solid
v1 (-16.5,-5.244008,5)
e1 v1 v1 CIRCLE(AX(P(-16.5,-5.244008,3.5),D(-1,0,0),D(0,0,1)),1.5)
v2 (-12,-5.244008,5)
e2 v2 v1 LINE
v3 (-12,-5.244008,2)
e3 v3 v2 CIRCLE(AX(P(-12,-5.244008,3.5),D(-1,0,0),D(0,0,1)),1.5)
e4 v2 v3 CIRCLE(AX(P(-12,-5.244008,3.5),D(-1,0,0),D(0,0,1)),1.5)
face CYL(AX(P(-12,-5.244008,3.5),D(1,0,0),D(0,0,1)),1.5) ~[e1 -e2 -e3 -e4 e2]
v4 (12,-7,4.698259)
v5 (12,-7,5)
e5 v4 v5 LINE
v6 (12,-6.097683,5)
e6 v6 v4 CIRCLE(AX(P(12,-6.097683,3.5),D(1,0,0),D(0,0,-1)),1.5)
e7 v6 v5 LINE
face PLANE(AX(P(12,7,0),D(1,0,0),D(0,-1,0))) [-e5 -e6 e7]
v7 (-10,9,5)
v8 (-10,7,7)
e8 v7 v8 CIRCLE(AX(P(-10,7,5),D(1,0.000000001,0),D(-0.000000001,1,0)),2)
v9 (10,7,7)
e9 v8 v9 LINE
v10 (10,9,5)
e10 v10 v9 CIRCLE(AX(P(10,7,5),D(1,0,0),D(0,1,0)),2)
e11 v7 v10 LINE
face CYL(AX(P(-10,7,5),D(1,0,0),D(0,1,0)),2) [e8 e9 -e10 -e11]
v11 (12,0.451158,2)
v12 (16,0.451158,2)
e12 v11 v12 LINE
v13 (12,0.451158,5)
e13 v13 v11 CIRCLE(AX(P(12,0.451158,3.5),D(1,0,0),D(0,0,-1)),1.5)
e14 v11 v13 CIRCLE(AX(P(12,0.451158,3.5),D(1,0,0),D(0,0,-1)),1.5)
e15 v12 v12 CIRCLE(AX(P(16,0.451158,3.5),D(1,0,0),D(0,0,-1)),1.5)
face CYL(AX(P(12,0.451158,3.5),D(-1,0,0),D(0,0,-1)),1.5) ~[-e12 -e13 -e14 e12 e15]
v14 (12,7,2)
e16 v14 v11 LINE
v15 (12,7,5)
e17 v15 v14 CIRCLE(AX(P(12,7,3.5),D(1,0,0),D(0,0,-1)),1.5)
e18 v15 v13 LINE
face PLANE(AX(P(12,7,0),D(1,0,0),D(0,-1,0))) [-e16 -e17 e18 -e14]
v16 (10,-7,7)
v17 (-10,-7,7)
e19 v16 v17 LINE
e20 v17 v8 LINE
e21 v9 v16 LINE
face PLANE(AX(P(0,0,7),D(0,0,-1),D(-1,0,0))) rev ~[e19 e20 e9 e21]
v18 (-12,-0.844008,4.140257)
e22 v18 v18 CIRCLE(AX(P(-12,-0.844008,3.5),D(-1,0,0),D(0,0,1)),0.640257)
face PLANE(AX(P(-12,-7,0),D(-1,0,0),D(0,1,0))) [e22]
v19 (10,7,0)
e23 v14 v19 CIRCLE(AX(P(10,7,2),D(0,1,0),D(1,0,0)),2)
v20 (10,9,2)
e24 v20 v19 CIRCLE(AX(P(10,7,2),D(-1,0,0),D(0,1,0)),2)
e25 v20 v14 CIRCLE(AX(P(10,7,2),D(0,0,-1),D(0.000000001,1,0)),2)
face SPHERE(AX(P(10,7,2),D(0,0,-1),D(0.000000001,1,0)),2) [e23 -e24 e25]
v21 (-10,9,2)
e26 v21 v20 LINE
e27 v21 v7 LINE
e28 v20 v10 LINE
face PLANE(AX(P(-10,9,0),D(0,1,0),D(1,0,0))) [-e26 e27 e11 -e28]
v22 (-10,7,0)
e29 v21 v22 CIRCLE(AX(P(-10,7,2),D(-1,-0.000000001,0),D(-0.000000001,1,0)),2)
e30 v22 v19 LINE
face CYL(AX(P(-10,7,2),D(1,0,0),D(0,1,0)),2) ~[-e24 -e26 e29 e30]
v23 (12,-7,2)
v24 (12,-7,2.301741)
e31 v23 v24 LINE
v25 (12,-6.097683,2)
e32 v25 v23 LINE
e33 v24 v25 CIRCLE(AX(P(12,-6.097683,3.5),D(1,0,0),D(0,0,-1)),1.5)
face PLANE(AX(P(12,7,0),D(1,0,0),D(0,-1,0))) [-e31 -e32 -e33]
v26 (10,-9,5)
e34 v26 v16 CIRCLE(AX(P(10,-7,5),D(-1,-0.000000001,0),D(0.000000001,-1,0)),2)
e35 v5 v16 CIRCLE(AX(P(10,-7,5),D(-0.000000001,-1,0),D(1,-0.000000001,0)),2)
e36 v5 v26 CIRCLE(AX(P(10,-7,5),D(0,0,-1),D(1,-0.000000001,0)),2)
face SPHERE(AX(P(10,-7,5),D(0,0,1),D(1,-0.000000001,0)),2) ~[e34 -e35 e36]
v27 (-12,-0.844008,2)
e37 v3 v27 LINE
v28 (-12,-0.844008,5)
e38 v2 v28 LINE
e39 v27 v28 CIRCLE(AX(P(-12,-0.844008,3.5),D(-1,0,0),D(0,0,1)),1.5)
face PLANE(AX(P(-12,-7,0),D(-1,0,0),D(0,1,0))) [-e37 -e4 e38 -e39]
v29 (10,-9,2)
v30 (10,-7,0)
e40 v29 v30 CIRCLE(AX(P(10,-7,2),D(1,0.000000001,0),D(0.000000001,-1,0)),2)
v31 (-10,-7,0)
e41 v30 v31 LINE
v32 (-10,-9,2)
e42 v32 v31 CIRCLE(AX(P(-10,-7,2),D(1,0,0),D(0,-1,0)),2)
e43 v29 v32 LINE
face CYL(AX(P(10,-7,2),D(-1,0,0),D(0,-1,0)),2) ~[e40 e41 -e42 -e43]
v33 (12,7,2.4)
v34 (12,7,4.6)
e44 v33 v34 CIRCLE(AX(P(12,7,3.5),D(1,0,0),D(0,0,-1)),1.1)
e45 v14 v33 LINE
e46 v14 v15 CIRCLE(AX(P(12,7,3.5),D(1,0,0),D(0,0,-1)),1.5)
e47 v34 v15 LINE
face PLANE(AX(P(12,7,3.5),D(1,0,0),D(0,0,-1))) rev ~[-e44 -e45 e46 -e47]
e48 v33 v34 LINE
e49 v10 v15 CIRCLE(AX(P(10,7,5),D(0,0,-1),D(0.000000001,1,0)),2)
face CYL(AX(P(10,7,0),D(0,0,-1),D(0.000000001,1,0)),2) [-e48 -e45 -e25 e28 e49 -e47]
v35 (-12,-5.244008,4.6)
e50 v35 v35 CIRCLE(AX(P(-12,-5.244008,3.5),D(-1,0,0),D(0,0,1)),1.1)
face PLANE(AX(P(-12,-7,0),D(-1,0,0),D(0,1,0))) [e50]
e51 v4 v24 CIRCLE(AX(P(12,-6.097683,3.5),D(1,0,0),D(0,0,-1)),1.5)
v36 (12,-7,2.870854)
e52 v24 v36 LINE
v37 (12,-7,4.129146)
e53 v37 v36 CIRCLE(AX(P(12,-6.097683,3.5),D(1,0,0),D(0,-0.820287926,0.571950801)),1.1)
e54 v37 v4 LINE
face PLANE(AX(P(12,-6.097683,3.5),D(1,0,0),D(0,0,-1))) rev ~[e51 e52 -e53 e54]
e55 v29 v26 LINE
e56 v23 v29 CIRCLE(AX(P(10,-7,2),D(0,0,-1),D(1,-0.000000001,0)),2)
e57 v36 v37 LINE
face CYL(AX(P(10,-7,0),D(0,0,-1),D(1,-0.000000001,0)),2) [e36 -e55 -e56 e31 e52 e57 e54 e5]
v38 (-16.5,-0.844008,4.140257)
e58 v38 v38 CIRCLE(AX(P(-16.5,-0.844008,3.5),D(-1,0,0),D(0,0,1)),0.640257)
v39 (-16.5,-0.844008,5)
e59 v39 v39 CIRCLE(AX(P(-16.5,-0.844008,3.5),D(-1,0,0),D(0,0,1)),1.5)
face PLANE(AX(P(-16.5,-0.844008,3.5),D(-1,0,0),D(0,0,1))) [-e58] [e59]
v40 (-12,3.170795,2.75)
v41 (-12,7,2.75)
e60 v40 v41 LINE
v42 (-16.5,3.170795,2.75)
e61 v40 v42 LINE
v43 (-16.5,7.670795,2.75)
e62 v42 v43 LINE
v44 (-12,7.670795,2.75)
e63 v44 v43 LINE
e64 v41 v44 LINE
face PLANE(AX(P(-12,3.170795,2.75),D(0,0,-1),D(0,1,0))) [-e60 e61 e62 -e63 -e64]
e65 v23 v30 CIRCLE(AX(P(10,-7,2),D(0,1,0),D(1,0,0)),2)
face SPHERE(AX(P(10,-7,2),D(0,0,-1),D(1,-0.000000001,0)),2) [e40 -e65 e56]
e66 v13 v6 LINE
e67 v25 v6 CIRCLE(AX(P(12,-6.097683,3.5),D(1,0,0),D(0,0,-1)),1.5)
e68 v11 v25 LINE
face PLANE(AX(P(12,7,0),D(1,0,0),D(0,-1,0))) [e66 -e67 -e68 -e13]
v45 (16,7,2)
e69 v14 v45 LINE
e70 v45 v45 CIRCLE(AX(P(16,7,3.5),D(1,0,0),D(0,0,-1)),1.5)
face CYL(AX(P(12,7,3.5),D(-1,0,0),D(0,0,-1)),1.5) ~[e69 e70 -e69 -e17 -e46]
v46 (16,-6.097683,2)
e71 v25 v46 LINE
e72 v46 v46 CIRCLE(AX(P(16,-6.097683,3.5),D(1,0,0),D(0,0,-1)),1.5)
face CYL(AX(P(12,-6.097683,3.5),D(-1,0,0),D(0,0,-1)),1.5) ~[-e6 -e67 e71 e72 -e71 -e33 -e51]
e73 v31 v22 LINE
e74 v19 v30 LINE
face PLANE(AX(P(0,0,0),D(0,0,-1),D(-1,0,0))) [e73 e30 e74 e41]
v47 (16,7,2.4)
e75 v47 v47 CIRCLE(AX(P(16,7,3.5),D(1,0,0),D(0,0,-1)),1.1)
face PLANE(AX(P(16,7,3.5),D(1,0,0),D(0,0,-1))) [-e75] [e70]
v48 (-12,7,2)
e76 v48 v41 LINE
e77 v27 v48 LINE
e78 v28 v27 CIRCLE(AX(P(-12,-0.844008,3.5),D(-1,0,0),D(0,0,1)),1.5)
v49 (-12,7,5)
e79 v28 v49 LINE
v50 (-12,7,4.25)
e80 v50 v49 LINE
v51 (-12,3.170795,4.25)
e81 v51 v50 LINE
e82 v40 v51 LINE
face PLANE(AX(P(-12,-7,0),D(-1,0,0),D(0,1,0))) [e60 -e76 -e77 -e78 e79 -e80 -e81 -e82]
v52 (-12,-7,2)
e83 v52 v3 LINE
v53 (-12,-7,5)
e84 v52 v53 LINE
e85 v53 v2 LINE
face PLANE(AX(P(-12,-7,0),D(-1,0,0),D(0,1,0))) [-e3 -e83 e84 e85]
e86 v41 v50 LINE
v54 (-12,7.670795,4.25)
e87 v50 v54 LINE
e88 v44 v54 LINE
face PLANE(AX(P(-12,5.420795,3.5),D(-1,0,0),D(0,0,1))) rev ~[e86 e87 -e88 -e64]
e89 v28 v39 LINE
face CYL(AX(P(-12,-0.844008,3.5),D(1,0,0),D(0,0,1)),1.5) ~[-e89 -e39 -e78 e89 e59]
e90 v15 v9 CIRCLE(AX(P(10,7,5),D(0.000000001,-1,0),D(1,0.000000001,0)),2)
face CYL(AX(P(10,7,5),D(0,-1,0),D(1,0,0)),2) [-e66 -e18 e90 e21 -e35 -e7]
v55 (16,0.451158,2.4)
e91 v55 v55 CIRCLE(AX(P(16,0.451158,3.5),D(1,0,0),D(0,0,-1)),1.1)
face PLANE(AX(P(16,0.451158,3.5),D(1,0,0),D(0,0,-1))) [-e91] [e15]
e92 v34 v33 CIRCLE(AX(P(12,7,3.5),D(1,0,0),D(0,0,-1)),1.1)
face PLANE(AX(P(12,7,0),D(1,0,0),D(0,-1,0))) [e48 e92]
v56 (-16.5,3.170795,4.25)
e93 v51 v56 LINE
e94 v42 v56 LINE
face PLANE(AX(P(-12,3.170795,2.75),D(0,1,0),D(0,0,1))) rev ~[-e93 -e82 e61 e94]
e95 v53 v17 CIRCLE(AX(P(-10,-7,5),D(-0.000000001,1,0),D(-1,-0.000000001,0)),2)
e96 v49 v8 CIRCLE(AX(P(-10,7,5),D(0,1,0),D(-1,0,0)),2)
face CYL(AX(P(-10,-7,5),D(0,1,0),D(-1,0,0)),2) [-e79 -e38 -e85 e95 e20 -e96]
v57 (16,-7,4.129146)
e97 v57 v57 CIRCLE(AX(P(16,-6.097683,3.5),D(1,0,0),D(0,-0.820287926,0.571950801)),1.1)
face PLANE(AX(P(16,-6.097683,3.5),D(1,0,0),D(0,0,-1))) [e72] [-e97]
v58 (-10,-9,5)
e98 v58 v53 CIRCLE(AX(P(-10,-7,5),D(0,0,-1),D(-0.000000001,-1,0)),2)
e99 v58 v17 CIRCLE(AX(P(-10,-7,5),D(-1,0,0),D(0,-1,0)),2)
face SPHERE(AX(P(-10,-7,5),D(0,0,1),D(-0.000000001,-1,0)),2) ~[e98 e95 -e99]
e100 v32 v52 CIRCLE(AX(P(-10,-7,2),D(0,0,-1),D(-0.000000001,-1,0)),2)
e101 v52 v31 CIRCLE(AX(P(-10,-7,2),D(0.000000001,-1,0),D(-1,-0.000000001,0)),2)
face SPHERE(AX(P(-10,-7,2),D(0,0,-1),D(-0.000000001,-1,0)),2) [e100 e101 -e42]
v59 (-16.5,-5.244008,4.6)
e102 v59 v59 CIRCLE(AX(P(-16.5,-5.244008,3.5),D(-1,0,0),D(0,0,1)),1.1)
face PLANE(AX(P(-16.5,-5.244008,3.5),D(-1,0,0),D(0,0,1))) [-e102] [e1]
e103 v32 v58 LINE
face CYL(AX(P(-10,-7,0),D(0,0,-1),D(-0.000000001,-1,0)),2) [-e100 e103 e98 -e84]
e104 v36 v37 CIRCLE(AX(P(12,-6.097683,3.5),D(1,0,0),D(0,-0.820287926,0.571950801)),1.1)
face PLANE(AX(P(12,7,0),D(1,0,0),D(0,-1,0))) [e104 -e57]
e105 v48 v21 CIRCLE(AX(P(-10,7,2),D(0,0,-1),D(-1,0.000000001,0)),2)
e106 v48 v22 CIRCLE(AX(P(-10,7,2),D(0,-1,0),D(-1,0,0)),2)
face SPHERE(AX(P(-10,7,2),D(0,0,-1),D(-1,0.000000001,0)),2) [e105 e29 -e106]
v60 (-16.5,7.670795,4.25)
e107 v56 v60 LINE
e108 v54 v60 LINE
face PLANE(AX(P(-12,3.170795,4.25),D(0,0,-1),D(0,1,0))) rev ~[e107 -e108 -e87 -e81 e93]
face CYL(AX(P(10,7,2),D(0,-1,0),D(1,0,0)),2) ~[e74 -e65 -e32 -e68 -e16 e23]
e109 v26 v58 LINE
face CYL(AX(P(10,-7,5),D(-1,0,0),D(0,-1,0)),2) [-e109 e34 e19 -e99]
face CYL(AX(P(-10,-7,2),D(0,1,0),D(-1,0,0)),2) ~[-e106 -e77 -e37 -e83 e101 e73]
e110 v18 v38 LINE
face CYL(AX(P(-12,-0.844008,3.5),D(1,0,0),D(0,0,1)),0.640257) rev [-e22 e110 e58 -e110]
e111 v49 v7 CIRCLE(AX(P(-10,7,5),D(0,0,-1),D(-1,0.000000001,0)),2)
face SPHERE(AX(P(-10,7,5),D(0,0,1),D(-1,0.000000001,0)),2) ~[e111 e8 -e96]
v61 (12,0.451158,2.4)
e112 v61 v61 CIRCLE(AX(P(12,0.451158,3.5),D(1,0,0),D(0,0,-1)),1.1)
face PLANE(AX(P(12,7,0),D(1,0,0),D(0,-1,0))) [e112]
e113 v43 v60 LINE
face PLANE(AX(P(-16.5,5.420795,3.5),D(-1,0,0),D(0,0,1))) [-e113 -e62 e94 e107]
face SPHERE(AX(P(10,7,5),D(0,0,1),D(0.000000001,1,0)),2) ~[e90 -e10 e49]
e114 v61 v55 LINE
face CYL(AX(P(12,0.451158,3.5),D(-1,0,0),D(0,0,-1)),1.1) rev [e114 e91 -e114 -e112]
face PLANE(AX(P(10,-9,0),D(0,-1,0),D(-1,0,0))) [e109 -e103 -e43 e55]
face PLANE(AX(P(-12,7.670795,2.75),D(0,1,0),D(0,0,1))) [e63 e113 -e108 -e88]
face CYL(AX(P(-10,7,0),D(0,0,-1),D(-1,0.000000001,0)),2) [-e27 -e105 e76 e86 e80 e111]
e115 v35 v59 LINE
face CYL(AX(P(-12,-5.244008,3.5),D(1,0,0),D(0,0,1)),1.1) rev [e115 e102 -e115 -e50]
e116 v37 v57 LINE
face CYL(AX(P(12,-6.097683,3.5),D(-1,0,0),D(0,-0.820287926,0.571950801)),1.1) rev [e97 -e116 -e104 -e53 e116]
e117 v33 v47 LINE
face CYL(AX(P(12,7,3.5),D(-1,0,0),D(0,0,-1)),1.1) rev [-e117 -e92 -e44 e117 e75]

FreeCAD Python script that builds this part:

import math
import FreeCAD as App
import Part
import Sketcher
Q = App.Units.Quantity


def edges_at(feature, points):
    """Names of the edges that pass closest to the given points."""
    edges = feature.Shape.Edges
    near = lambda p: min(range(len(edges)), key=lambda i: edges[i].distToShape(Part.Vertex(*p))[0])
    return sorted({f"Edge{near(p) + 1}" for p in points})


def add_polygon(sketch, points):
    """Adds a closed chain of lines whose ends are joined by coincident constraints."""
    first, n = sketch.GeometryCount, len(points)
    for a, b in zip(points, points[1:] + points[:1]):
        sketch.addGeometry(Part.LineSegment(App.Vector(*a, 0), App.Vector(*b, 0)), False)
    for i in range(n):
        sketch.addConstraint(Sketcher.Constraint("Coincident", first + i, 2, first + (i + 1) % n, 1))

doc = App.newDocument("Part")
body = doc.addObject("PartDesign::Body", "Body")

sketch1 = doc.addObject("Sketcher::SketchObject", "Sketch")
body.addObject(sketch1)
sketch1.AttachmentSupport = (doc.XY_Plane, [""])
sketch1.MapMode = "FlatFace"
sketch1.addGeometry([
    Part.LineSegment(App.Vector(-10, -9, 0), App.Vector(10, -9, 0)),
    Part.ArcOfCircle(Part.Circle(App.Vector(10, -7, 0), App.Vector(0, 0, 1), 2), math.radians(-90), math.radians(0)),
    Part.LineSegment(App.Vector(12, -7, 0), App.Vector(12, 7, 0)),
    Part.ArcOfCircle(Part.Circle(App.Vector(10, 7, 0), App.Vector(0, 0, 1), 2), math.radians(0), math.radians(90)),
    Part.LineSegment(App.Vector(10, 9, 0), App.Vector(-10, 9, 0)),
    Part.ArcOfCircle(Part.Circle(App.Vector(-10, 7, 0), App.Vector(0, 0, 1), 2), math.radians(90), math.radians(180)),
    Part.LineSegment(App.Vector(-12, 7, 0), App.Vector(-12, -7, 0)),
    Part.ArcOfCircle(Part.Circle(App.Vector(-10, -7, 0), App.Vector(0, 0, 1), 2), math.radians(-180), math.radians(-90)),
], False)
sketch1.addConstraint([
    Sketcher.Constraint("Tangent", 0, 2, 1, 1),
    Sketcher.Constraint("Tangent", 1, 2, 2, 1),
    Sketcher.Constraint("Tangent", 2, 2, 3, 1),
    Sketcher.Constraint("Tangent", 3, 2, 4, 1),
    Sketcher.Constraint("Tangent", 4, 2, 5, 1),
    Sketcher.Constraint("Tangent", 5, 2, 6, 1),
    Sketcher.Constraint("Tangent", 6, 2, 7, 1),
    Sketcher.Constraint("Tangent", 7, 2, 0, 1),
    Sketcher.Constraint("Horizontal", 0),
    Sketcher.Constraint("Vertical", 2),
    Sketcher.Constraint("Horizontal", 4),
    Sketcher.Constraint("Vertical", 6),
    Sketcher.Constraint("Equal", 1, 3),
    Sketcher.Constraint("Equal", 3, 5),
    Sketcher.Constraint("Equal", 5, 7),
    Sketcher.Constraint("Symmetric", 1, 3, 5, 3, -1, 1),
    Sketcher.Constraint("Radius", 1, Q("2 mm")),
    Sketcher.Constraint("DistanceX", 0, 1, 0, 2, Q("20 mm")),
    Sketcher.Constraint("DistanceY", 2, 1, 2, 2, Q("14 mm")),
])
pad1 = doc.addObject("PartDesign::Pad", "Pad")
body.addObject(pad1)
pad1.Profile = sketch1
pad1.Length = 7
doc.recompute()

fillet = doc.addObject("PartDesign::Fillet", "Fillet")
body.addObject(fillet)
fillet.Base = (pad1, edges_at(pad1, [
    (12, 0, 0),
    (11.414, -8.414, 0),
    (0, -9, 0),
    (-11.414, -8.414, 0),
    (11.414, -8.414, 7),
    (12, 0, 7),
    (11.414, 8.414, 7),
    (0, 9, 7),
    (-11.414, 8.414, 7),
    (-12, 0, 7),
    (-11.414, -8.414, 7),
    (-12, 0, 0),
    (0, -9, 7),
    (-11.414, 8.414, 0),
    (0, 9, 0),
    (11.414, 8.414, 0),
]))
fillet.Radius = 2

sketch2 = doc.addObject("Sketcher::SketchObject", "Sketch001")
body.addObject(sketch2)
sketch2.AttachmentSupport = (doc.YZ_Plane, [""])
sketch2.MapMode = "FlatFace"
sketch2.AttachmentOffset = App.Placement(App.Vector(0, 0, 12), App.Rotation())
sketch2.addGeometry([
    Part.Circle(App.Vector(7, 3.5, 0), App.Vector(0, 0, 1), 1.5),
    Part.Circle(App.Vector(7, 3.5, 0), App.Vector(0, 0, 1), 1.1),
    Part.Circle(App.Vector(0.5, 3.5, 0), App.Vector(0, 0, 1), 1.5),
    Part.Circle(App.Vector(0.5, 3.5, 0), App.Vector(0, 0, 1), 1.1),
    Part.Circle(App.Vector(-6.1, 3.5, 0), App.Vector(0, 0, 1), 1.5),
    Part.Circle(App.Vector(-6.1, 3.5, 0), App.Vector(0, 0, 1), 1.1),
], False)
sketch2.addConstraint([
    Sketcher.Constraint("Coincident", 1, 3, 0, 3),
    Sketcher.Constraint("Coincident", 3, 3, 2, 3),
    Sketcher.Constraint("Coincident", 5, 3, 4, 3),
    Sketcher.Constraint("Equal", 0, 2),
    Sketcher.Constraint("Equal", 1, 3),
    Sketcher.Constraint("Equal", 2, 4),
    Sketcher.Constraint("Equal", 3, 5),
    Sketcher.Constraint("Horizontal", 1, 3, 2, 3),
    Sketcher.Constraint("Horizontal", 3, 3, 4, 3),
    Sketcher.Constraint("Diameter", 0, Q("3 mm")),
    Sketcher.Constraint("Diameter", 1, Q("2.2 mm")),
    Sketcher.Constraint("DistanceX", -1, 1, 0, 3, Q("7 mm")),
    Sketcher.Constraint("DistanceY", -1, 1, 0, 3, Q("3.5 mm")),
    Sketcher.Constraint("DistanceX", -1, 1, 2, 3, Q("0.451158 mm")),
    Sketcher.Constraint("DistanceX", 4, 3, 2, 3, Q("6.548842 mm")),
])
pad2 = doc.addObject("PartDesign::Pad", "Pad001")
body.addObject(pad2)
pad2.Profile = sketch2
pad2.Length = 4

sketch3 = doc.addObject("Sketcher::SketchObject", "Sketch002")
body.addObject(sketch3)
sketch3.AttachmentSupport = (doc.YZ_Plane, [""])
sketch3.MapMode = "FlatFace"
sketch3.AttachmentOffset = App.Placement(App.Vector(0, 0, -12), App.Rotation())
sketch3.addGeometry(Part.Circle(App.Vector(-0.8, 3.5, 0), App.Vector(0, 0, 1), 1.5), False)
sketch3.addGeometry(Part.Circle(App.Vector(-0.8, 3.5, 0), App.Vector(0, 0, 1), 0.6), False)
sketch3.addGeometry(Part.Circle(App.Vector(-5.2, 3.5, 0), App.Vector(0, 0, 1), 1.5), False)
sketch3.addGeometry(Part.Circle(App.Vector(-5.2, 3.5, 0), App.Vector(0, 0, 1), 1.1), False)
add_polygon(sketch3, [(7.7, 2.8), (3.2, 2.8), (3.2, 4.2), (7.7, 4.2)])
sketch3.addConstraint([
    Sketcher.Constraint("Horizontal", 4),
    Sketcher.Constraint("Vertical", 5),
    Sketcher.Constraint("Horizontal", 6),
    Sketcher.Constraint("Vertical", 7),
    Sketcher.Constraint("Coincident", 1, 3, 0, 3),
    Sketcher.Constraint("Coincident", 3, 3, 2, 3),
    Sketcher.Constraint("Equal", 0, 2),
    Sketcher.Constraint("Horizontal", 1, 3, 2, 3),
    Sketcher.Constraint("Diameter", 0, Q("3 mm")),
    Sketcher.Constraint("Diameter", 3, Q("2.2 mm")),
    Sketcher.Constraint("DistanceX", 4, 2, 4, 1, Q("4.5 mm")),
    Sketcher.Constraint("DistanceY", 5, 1, 5, 2, Q("1.5 mm")),
    Sketcher.Constraint("DistanceY", -1, 1, 0, 3, Q("3.5 mm")),
    Sketcher.Constraint("DistanceX", 2, 3, 0, 3, Q("4.4 mm")),
    Sketcher.Constraint("DistanceY", -1, 1, 4, 2, Q("2.75 mm")),
    Sketcher.Constraint("Diameter", 1, Q("1.280513 mm")),
    Sketcher.Constraint("DistanceX", 0, 3, -1, 1, Q("0.844008 mm")),
    Sketcher.Constraint("DistanceX", -1, 1, 4, 2, Q("3.170795 mm")),
])
pad3 = doc.addObject("PartDesign::Pad", "Pad002")
body.addObject(pad3)
pad3.Profile = sketch3
pad3.Length = 4.5
pad3.Reversed = True

doc.recompute()
